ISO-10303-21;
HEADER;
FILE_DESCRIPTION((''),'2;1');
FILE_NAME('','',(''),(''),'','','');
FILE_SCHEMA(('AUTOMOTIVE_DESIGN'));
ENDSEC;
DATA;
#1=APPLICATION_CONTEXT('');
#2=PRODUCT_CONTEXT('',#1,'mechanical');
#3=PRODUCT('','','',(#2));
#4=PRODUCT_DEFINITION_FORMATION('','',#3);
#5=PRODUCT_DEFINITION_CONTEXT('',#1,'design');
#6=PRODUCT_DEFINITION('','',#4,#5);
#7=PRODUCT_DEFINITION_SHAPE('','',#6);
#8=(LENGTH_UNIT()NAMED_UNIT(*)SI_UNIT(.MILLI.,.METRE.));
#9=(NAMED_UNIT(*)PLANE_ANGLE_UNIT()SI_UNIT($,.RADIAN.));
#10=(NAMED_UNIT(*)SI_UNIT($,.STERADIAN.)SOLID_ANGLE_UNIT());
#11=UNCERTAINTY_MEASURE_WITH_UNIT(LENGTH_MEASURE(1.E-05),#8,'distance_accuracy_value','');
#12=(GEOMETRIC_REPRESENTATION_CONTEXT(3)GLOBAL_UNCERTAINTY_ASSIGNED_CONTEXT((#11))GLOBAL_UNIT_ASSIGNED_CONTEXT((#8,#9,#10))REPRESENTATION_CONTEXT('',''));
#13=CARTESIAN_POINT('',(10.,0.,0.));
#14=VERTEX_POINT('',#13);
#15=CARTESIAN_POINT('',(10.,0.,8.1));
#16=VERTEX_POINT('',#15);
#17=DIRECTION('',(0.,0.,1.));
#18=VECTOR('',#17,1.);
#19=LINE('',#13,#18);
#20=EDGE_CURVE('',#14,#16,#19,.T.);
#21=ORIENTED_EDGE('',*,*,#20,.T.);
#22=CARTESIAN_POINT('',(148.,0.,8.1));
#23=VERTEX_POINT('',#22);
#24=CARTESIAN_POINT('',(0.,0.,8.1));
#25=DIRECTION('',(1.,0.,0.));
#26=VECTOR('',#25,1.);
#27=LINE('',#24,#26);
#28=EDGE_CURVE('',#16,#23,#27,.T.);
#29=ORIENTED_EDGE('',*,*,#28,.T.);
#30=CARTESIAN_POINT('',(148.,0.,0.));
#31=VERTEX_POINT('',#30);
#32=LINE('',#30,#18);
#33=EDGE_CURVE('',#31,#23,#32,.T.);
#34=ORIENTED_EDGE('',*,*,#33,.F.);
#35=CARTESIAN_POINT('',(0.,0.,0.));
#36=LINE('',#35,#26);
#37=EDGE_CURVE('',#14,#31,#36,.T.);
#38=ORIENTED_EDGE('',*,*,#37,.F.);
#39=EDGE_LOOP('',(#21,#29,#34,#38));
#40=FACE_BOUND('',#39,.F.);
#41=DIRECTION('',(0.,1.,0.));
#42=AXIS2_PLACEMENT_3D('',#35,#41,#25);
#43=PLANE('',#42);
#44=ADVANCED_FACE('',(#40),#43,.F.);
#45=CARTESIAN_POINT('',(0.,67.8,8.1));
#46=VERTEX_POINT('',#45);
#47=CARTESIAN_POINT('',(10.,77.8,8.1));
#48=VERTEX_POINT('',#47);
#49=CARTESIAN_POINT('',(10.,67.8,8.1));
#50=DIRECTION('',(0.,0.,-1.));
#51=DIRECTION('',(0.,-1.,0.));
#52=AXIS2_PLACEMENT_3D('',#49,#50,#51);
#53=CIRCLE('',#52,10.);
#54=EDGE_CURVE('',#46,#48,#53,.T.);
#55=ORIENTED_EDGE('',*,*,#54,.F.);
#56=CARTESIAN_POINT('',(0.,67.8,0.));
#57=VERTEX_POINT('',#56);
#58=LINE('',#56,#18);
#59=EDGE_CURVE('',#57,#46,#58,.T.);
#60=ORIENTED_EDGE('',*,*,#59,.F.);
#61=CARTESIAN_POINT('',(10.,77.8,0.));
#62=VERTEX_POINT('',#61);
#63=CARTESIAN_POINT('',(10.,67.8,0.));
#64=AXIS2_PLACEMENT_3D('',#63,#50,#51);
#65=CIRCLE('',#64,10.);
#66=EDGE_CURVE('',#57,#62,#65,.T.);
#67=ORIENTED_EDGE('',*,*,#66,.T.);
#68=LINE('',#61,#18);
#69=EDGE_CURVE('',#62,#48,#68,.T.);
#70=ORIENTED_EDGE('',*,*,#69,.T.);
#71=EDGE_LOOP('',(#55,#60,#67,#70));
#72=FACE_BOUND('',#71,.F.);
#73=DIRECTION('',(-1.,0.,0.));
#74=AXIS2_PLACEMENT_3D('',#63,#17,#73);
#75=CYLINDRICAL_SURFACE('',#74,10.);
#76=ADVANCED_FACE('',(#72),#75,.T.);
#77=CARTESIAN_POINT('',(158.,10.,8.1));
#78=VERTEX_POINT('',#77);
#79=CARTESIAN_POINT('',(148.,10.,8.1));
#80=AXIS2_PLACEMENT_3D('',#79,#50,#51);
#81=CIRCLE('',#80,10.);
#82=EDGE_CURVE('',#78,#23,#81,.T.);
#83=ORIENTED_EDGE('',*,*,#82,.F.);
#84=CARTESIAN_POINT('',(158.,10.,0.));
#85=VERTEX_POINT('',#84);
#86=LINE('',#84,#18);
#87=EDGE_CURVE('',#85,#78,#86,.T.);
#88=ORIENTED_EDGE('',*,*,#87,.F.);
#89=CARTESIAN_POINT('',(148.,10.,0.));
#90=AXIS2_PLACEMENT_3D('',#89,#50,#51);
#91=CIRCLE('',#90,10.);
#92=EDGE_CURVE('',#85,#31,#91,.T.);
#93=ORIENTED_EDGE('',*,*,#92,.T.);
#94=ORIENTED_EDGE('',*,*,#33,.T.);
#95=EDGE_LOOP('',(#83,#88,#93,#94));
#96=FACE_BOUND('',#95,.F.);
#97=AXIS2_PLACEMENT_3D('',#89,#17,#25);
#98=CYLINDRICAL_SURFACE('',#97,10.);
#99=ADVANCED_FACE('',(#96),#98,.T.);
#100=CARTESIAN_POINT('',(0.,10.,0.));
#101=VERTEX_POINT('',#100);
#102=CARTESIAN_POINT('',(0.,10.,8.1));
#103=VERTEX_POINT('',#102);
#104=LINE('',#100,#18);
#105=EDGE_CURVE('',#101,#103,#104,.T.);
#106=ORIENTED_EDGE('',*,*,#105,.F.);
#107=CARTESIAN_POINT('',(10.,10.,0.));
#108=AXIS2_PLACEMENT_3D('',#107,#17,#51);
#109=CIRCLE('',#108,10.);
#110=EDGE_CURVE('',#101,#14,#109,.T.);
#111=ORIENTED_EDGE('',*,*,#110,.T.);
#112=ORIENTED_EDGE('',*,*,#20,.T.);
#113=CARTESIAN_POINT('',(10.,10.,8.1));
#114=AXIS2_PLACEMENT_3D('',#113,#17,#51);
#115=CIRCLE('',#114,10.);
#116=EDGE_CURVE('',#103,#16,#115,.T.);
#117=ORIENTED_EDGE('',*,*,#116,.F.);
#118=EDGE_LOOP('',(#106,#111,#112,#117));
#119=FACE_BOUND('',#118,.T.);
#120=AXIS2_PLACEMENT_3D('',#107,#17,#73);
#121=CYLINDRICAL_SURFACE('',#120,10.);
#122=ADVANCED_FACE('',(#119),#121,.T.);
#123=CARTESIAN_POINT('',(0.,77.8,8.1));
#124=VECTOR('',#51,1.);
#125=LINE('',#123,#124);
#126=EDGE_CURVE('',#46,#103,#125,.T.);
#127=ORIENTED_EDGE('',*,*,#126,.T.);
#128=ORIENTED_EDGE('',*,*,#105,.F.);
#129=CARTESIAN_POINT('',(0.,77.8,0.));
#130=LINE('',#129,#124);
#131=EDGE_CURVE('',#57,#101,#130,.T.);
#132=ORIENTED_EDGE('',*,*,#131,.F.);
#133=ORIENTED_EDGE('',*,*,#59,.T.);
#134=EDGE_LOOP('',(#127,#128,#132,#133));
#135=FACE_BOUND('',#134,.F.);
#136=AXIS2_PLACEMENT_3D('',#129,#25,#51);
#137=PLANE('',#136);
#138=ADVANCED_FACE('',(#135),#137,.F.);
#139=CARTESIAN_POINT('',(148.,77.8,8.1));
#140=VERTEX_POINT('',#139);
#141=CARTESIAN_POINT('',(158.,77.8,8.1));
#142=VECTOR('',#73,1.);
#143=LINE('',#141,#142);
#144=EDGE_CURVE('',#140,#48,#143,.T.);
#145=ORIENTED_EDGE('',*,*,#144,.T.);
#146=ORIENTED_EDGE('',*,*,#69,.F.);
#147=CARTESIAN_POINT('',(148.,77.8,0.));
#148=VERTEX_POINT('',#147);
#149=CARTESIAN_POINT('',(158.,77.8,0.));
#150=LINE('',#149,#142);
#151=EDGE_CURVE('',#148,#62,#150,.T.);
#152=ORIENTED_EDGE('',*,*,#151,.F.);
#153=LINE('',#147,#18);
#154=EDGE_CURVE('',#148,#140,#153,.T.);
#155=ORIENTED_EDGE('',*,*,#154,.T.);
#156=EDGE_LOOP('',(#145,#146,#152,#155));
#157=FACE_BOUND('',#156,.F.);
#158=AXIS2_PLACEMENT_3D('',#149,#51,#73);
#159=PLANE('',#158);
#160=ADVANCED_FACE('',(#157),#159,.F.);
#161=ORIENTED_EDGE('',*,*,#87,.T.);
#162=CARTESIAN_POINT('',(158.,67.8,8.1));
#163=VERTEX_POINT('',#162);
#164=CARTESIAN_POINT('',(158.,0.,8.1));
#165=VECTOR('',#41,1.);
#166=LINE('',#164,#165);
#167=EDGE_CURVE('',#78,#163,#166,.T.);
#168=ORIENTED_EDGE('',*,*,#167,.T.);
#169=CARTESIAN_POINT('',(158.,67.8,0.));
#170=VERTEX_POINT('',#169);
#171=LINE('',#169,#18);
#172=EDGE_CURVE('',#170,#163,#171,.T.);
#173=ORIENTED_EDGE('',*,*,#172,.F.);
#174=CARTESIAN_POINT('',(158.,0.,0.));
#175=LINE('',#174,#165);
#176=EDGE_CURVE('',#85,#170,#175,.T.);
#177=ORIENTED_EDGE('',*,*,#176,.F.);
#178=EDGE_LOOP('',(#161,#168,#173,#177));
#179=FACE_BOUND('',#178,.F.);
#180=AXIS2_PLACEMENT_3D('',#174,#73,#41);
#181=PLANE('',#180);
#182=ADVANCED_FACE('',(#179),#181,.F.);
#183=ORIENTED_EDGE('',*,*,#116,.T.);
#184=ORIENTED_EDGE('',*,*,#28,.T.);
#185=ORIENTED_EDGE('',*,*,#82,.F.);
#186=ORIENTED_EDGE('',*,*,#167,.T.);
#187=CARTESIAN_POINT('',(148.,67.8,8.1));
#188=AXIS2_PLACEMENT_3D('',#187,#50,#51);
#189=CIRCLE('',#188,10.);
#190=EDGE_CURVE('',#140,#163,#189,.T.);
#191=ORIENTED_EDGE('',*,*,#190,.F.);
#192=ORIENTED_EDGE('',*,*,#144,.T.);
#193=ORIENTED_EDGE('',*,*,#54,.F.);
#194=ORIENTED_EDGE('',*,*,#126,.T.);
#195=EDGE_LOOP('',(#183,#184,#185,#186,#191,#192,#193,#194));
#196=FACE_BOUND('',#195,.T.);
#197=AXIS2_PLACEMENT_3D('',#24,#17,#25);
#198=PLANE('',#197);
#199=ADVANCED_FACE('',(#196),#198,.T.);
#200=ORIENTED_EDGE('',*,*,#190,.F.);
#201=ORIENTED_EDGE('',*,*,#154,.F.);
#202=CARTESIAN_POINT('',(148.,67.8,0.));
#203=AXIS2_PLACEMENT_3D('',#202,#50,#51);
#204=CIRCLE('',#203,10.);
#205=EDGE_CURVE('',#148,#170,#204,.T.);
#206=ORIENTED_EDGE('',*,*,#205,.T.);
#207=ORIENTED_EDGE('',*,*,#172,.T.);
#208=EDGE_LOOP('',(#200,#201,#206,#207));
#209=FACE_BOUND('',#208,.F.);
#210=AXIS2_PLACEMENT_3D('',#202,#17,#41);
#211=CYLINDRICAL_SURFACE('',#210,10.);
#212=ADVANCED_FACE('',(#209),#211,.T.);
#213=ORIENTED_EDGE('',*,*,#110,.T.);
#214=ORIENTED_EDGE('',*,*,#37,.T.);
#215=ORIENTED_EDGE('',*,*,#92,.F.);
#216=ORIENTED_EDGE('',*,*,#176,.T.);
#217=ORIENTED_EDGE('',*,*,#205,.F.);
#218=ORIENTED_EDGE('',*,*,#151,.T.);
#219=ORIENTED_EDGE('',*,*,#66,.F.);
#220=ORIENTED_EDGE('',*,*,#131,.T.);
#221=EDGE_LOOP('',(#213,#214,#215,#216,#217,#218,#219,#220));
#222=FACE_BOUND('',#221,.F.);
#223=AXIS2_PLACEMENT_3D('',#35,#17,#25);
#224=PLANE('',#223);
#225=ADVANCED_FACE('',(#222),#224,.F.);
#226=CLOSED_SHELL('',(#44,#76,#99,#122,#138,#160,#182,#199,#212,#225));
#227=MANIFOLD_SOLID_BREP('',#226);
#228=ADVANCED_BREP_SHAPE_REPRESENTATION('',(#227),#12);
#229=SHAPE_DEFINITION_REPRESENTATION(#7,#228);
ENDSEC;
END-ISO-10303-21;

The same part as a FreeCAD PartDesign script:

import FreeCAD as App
import Part
import Sketcher

V = App.Vector


def edges_at(feature, points):
    """Names of the edges that pass closest to the given points."""
    edges = feature.Shape.Edges
    near = lambda p: min(range(len(edges)), key=lambda i: edges[i].distToShape(Part.Vertex(*p))[0])
    return sorted({f"Edge{near(p) + 1}" for p in points})

doc = App.newDocument("Part")
body = doc.addObject("PartDesign::Body", "Body")

sketch1 = body.newObject("Sketcher::SketchObject", "Sketch")
sketch1.AttachmentSupport = (doc.getObject("XY_Plane"), [""])
sketch1.MapMode = "FlatFace"
sketch1.addGeometry([
    Part.LineSegment(V(0, 78, 0), V(0, 0, 0)),
    Part.LineSegment(V(0, 0, 0), V(158, 0, 0)),
    Part.LineSegment(V(158, 0, 0), V(158, 78, 0)),
    Part.LineSegment(V(158, 78, 0), V(0, 78, 0)),
], False)
sketch1.addConstraint([
    Sketcher.Constraint("Coincident", 0, 2, 1, 1),
    Sketcher.Constraint("Coincident", 1, 2, 2, 1),
    Sketcher.Constraint("Coincident", 2, 2, 3, 1),
    Sketcher.Constraint("Coincident", 3, 2, 0, 1),
    Sketcher.Constraint("Vertical", 0),
    Sketcher.Constraint("Horizontal", 1),
    Sketcher.Constraint("Vertical", 2),
    Sketcher.Constraint("Horizontal", 3),
    Sketcher.Constraint("Coincident", 0, 2, -1, 1),
    Sketcher.Constraint("DistanceX", 1, 1, 1, 2, 158.0),
    Sketcher.Constraint("DistanceY", 0, 2, 0, 1, 77.8),
])
pad1 = body.newObject("PartDesign::Pad", "Pad")
pad1.Profile = sketch1
pad1.Length = 8.1
doc.recompute()

fillet = body.newObject("PartDesign::Fillet", "Fillet")
fillet.Base = (pad1, edges_at(pad1, [
    (0, 0, 4.05),
    (158, 0, 4.05),
    (158, 77.8, 4.05),
    (0, 77.8, 4.05),
]))
fillet.Radius = 10

doc.recompute()
